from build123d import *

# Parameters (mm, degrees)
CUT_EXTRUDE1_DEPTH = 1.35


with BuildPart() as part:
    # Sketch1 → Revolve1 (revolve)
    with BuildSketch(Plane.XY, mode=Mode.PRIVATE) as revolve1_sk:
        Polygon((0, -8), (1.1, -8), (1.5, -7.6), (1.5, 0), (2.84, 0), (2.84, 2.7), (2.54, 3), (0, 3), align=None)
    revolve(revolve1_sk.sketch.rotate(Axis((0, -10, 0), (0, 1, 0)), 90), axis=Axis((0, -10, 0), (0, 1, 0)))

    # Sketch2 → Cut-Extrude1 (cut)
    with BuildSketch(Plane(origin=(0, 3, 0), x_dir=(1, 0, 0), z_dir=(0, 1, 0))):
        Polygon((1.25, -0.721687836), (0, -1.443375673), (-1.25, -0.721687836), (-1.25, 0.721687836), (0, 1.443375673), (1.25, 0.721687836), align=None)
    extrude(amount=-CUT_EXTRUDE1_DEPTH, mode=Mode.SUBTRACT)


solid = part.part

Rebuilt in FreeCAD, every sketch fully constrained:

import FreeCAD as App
import Part
import Sketcher

V = App.Vector
Q = App.Units.Quantity


def add_polygon(sketch, points):
    """Adds a closed chain of lines whose ends are joined by coincident constraints."""
    first, n = sketch.GeometryCount, len(points)
    for a, b in zip(points, points[1:] + points[:1]):
        sketch.addGeometry(Part.LineSegment(App.Vector(*a, 0), App.Vector(*b, 0)), False)
    for i in range(n):
        sketch.addConstraint(Sketcher.Constraint("Coincident", first + i, 2, first + (i + 1) % n, 1))

doc = App.newDocument("Part")
params = doc.addObject("Spreadsheet::Sheet", "Params")
for row, (alias, value) in enumerate([
    ("sketch1_height", "11 mm"),
    ("sketch1_width", "1.1 mm"),
    ("sketch1_height2", "7.6 mm"),
    ("sketch1_height3", "2.7 mm"),
    ("sketch1_width2", "1.34 mm"),
    ("revolution_angle", "360 deg"),
    ("pocket1_length", "1.35 mm"),
], start=1):
    params.set(f"A{row}", alias)
    params.set(f"B{row}", "=" + value)
    params.setAlias(f"B{row}", alias)

body = doc.addObject("PartDesign::Body", "Body")

# Sketch on XY plane
sketch1 = doc.addObject("Sketcher::SketchObject", "Sketch")
body.addObject(sketch1)
sketch1.AttachmentSupport = (doc.XY_Plane, [""])
sketch1.MapMode = "FlatFace"
add_polygon(sketch1, [(0, -8), (1.1, -8), (1.5, -7.6), (1.5, 0), (2.84, 0), (2.84, 2.7), (2.54, 3), (0, 3)])  # lines 0-7
sketch1.addConstraint(Sketcher.Constraint("Horizontal", 0))
sketch1.addConstraint(Sketcher.Constraint("Vertical", 2))
sketch1.addConstraint(Sketcher.Constraint("Horizontal", 3))
sketch1.addConstraint(Sketcher.Constraint("Vertical", 4))
sketch1.addConstraint(Sketcher.Constraint("Horizontal", 6))
sketch1.addConstraint(Sketcher.Constraint("Vertical", 7))
sketch1.addConstraint(Sketcher.Constraint("PointOnObject", 2, 2, -1))
sketch1.addConstraint(Sketcher.Constraint("PointOnObject", 6, 2, -2))
sketch1.addConstraint(Sketcher.Constraint("Perpendicular", 1, 5))
sketch1.addConstraint(Sketcher.Constraint("DistanceY", 7, 2, 7, 1, Q("11 mm")))
sketch1.addConstraint(Sketcher.Constraint("Angle", 1, Q("45 deg")))
sketch1.addConstraint(Sketcher.Constraint("DistanceX", 0, 1, 0, 2, Q("1.1 mm")))
sketch1.addConstraint(Sketcher.Constraint("DistanceY", 2, 1, 2, 2, Q("7.6 mm")))
sketch1.addConstraint(Sketcher.Constraint("DistanceY", 4, 1, 4, 2, Q("2.7 mm")))
sketch1.addConstraint(Sketcher.Constraint("DistanceY", 0, 2, -1, 1, Q("8 mm")))
sketch1.addConstraint(Sketcher.Constraint("DistanceX", 3, 1, 3, 2, Q("1.34 mm")))
sketch1.setExpression("Constraints[17]", "Params.sketch1_height")
sketch1.setExpression("Constraints[19]", "Params.sketch1_width")
sketch1.setExpression("Constraints[20]", "Params.sketch1_height2")
sketch1.setExpression("Constraints[21]", "Params.sketch1_height3")
sketch1.setExpression("Constraints[23]", "Params.sketch1_width2")
revolution = doc.addObject("PartDesign::Revolution", "Revolution")
body.addObject(revolution)
revolution.Profile = sketch1
revolution.ReferenceAxis = (sketch1, ["V_Axis"])
revolution.setExpression("Angle", "Params.revolution_angle")

# Sketch on XZ plane
sketch2 = doc.addObject("Sketcher::SketchObject", "Sketch001")
body.addObject(sketch2)
sketch2.AttachmentSupport = (doc.XZ_Plane, [""])
sketch2.MapMode = "FlatFace"
sketch2.AttachmentOffset = App.Placement(V(0, 0, -3), App.Rotation())
add_polygon(sketch2, [(0, 1.443376), (1.25, 0.721688), (1.25, -0.721688), (0, -1.443376), (-1.25, -0.721688), (-1.25, 0.721688)])  # lines 0-5
sketch2.addConstraint(Sketcher.Constraint("Vertical", 1))
sketch2.addConstraint(Sketcher.Constraint("Vertical", 4))
sketch2.addConstraint(Sketcher.Constraint("Symmetric", 0, 2, 3, 2, -1, 1))
sketch2.addConstraint(Sketcher.Constraint("Symmetric", 2, 2, 5, 2, -1, 1))
sketch2.addConstraint(Sketcher.Constraint("PointOnObject", 2, 2, -2))
sketch2.addConstraint(Sketcher.Constraint("Parallel", 2, 5))
sketch2.addConstraint(Sketcher.Constraint("Horizontal", 1, 2, 3, 2))
sketch2.addConstraint(Sketcher.Constraint("Angle", 0, Q("-30 deg")))
sketch2.addConstraint(Sketcher.Constraint("DistanceX", 3, 2, 1, 2, Q("2.5 mm")))
sketch2.addConstraint(Sketcher.Constraint("DistanceY", 1, 2, 1, 1, Q("1.443376 mm")))
pocket1 = doc.addObject("PartDesign::Pocket", "Pocket")
body.addObject(pocket1)
pocket1.Profile = sketch2
pocket1.setExpression("Length", "Params.pocket1_length")
pocket1.Reversed = True

doc.recompute()
